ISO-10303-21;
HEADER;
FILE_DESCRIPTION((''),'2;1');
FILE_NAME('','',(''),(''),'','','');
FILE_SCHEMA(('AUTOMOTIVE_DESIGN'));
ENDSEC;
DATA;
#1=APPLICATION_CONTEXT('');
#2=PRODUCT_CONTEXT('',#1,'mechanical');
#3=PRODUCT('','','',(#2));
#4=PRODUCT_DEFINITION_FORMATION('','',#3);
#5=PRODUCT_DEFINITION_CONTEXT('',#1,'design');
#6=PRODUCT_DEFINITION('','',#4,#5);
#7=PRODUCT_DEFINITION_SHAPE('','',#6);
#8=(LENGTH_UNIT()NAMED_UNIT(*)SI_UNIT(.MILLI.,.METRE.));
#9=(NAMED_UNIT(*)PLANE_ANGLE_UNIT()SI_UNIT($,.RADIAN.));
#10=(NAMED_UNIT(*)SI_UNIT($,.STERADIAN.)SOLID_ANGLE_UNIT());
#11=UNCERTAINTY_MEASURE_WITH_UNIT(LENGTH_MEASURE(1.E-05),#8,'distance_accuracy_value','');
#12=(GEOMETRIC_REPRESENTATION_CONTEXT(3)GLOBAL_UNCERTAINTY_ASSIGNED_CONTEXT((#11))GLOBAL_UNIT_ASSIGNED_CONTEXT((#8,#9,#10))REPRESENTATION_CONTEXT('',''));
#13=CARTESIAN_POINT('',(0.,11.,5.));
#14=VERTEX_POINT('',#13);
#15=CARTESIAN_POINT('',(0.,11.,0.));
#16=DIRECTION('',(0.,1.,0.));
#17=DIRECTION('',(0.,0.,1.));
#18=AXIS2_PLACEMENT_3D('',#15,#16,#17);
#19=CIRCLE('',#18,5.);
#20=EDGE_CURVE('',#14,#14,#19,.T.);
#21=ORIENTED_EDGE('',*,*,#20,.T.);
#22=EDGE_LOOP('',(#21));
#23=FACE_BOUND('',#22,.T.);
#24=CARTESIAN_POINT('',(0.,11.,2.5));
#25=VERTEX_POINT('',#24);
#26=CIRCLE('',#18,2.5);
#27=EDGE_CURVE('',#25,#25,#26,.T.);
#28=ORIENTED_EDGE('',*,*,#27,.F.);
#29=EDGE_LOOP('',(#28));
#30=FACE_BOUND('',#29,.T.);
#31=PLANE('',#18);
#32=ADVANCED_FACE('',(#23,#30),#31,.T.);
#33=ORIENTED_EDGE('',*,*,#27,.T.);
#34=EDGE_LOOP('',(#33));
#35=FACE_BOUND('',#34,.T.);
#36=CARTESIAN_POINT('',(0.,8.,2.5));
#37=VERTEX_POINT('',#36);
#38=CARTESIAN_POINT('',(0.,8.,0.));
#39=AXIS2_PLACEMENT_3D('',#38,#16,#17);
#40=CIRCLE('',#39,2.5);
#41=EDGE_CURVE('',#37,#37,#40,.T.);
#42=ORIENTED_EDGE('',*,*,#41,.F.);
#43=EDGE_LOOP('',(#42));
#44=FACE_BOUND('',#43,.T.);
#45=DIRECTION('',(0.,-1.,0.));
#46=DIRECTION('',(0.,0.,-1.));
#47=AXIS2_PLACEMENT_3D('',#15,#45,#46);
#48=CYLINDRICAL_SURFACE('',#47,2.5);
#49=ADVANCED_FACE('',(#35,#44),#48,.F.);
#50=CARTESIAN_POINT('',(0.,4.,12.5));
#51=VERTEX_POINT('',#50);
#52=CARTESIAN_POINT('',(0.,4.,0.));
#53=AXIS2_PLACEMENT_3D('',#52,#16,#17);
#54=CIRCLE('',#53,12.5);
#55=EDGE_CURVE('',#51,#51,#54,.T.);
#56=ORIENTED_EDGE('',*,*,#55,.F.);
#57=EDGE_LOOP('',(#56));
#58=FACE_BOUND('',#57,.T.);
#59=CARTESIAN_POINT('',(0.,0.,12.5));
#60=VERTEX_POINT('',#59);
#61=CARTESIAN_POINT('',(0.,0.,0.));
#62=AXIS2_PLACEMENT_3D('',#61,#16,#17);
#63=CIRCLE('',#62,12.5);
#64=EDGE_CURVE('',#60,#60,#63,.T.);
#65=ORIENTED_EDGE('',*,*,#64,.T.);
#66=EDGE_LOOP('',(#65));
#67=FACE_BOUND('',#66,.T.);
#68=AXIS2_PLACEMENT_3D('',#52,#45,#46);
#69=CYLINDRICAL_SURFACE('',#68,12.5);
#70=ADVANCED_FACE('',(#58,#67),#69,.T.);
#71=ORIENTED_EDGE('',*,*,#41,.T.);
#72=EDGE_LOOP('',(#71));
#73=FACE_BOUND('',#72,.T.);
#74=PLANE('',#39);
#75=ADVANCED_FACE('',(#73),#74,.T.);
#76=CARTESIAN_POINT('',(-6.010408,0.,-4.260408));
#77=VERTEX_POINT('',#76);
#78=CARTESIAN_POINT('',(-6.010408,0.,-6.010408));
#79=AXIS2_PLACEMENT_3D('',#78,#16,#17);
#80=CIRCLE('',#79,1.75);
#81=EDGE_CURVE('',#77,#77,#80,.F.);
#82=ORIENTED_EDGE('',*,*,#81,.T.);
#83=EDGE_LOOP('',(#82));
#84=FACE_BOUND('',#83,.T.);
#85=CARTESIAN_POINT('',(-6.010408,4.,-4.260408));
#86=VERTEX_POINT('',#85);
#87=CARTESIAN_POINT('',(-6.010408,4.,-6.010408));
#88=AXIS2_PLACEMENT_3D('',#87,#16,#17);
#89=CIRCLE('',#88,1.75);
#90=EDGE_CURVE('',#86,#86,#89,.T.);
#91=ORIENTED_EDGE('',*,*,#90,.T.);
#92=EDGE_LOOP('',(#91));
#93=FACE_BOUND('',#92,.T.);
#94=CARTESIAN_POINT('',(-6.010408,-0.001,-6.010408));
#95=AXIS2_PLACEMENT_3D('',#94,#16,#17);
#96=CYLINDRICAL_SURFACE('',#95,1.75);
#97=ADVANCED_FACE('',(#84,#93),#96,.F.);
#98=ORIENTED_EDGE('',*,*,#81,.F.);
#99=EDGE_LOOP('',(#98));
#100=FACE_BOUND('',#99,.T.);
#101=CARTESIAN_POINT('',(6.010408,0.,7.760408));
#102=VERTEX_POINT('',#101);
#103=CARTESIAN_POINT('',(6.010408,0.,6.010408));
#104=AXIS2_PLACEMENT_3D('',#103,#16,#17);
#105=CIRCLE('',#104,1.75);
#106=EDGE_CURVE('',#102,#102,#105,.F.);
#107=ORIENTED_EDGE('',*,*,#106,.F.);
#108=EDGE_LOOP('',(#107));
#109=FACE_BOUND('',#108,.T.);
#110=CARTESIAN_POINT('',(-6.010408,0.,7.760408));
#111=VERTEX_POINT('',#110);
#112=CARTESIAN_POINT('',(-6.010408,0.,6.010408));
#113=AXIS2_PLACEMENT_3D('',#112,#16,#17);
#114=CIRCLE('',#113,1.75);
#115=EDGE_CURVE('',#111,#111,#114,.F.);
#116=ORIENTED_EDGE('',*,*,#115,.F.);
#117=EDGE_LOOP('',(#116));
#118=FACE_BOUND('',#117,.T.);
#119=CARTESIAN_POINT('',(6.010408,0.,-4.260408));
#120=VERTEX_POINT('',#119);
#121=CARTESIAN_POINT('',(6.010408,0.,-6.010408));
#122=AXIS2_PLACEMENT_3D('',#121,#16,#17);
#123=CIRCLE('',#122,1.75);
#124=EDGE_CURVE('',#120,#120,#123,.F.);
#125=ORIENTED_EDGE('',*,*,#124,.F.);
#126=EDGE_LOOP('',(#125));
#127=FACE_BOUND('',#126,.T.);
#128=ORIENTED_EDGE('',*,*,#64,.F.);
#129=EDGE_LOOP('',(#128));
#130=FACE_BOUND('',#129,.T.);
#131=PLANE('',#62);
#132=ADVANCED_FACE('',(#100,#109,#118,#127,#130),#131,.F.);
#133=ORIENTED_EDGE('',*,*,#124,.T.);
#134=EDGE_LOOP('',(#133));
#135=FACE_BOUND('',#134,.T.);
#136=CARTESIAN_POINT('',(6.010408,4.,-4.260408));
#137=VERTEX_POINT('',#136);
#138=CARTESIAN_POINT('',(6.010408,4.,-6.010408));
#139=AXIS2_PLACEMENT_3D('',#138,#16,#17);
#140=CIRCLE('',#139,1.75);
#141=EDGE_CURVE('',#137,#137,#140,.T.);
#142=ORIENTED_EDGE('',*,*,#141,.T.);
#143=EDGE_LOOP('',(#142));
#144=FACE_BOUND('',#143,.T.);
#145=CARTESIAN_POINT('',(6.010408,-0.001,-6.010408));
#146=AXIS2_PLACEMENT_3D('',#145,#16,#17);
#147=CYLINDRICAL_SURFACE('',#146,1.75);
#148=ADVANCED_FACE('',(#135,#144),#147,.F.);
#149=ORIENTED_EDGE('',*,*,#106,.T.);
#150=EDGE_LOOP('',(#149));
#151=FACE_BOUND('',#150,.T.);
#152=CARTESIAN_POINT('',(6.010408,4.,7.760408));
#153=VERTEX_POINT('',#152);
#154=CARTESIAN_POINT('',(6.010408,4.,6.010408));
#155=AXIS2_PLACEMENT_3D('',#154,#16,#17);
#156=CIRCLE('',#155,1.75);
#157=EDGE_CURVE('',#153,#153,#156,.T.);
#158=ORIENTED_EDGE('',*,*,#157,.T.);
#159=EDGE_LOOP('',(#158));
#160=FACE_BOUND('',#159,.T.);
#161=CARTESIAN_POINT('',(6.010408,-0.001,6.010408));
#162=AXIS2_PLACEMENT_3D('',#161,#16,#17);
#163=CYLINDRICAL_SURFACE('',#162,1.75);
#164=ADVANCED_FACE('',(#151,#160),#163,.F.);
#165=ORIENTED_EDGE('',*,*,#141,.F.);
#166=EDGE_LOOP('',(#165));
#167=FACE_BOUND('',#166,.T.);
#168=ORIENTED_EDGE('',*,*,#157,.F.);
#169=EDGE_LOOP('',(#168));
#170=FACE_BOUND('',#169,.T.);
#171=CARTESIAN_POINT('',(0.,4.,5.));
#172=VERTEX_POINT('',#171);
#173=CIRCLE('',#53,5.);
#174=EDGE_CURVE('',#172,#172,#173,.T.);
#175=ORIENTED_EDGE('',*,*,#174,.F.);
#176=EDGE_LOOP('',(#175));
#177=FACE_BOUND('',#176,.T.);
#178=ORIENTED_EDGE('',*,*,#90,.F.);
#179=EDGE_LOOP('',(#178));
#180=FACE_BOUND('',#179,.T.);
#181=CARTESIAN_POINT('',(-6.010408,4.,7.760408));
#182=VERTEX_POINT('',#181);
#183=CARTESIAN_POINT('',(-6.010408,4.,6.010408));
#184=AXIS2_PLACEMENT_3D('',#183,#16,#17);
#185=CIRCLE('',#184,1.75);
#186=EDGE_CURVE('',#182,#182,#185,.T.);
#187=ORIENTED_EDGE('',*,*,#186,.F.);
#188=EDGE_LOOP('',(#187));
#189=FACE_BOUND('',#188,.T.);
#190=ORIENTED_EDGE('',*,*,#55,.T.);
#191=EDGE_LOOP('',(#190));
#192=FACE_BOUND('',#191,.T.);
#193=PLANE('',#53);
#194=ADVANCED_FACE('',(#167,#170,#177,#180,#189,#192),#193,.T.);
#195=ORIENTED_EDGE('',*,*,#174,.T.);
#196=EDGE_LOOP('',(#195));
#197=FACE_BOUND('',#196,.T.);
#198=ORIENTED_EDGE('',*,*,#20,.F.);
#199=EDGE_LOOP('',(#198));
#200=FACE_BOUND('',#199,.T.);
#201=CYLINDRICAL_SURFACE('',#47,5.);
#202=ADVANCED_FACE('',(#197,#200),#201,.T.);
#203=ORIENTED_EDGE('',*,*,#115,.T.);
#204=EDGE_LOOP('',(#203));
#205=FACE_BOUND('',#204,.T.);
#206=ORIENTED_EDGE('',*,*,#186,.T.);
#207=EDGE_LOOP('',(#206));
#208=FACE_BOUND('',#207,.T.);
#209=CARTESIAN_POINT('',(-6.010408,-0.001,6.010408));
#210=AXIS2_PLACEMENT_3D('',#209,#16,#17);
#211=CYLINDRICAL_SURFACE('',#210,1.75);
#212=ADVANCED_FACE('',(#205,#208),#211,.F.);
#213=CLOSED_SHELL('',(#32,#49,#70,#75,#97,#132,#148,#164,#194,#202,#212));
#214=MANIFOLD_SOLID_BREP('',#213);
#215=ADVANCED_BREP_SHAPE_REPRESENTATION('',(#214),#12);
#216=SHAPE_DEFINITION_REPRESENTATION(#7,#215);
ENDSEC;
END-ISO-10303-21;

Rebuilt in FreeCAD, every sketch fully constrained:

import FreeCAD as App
import Part
import Sketcher
from FreeCAD import Vector

doc = App.newDocument("Part")
body = doc.addObject("PartDesign::Body", "Body")

# Sketch on XZ plane
sketch1 = body.newObject("Sketcher::SketchObject", "Sketch")
sketch1.AttachmentSupport = (doc.getObject("XZ_Plane"), [""])
sketch1.MapMode = "FlatFace"
sketch1.addGeometry(Part.Circle(Vector(0, 0, 0), Vector(0, 0, 1), 12), False)
sketch1.addConstraint(Sketcher.Constraint("Coincident", 0, 3, -1, 1))
sketch1.addConstraint(Sketcher.Constraint("Diameter", 0, 25.0))
pad1 = body.newObject("PartDesign::Pad", "Pad")
pad1.Profile = sketch1
pad1.Length = 4
pad1.Reversed = True

# Sketch on XZ plane
sketch2 = body.newObject("Sketcher::SketchObject", "Sketch001")
sketch2.AttachmentSupport = (doc.getObject("XZ_Plane"), [""])
sketch2.MapMode = "FlatFace"
sketch2.AttachmentOffset = App.Placement(Vector(0, 0, -4), App.Rotation())
sketch2.addGeometry(Part.Circle(Vector(0, 0, 0), Vector(0, 0, 1), 5), False)
sketch2.addGeometry(Part.Circle(Vector(0, 0, 0), Vector(0, 0, 1), 2.5), False)
sketch2.addConstraint(Sketcher.Constraint("Coincident", 0, 3, -1, 1))
sketch2.addConstraint(Sketcher.Constraint("Coincident", 1, 3, -1, 1))
sketch2.addConstraint(Sketcher.Constraint("Diameter", 0, 10.0))
sketch2.addConstraint(Sketcher.Constraint("Diameter", 1, 5.0))
pad2 = body.newObject("PartDesign::Pad", "Pad001")
pad2.Profile = sketch2
pad2.Length = 7
pad2.Reversed = True

# Sketch on XZ plane
sketch3 = body.newObject("Sketcher::SketchObject", "Sketch002")
sketch3.AttachmentSupport = (doc.getObject("XZ_Plane"), [""])
sketch3.MapMode = "FlatFace"
sketch3.AttachmentOffset = App.Placement(Vector(0, 0, -4), App.Rotation())
sketch3.addGeometry(Part.Circle(Vector(-6, -6, 0), Vector(0, 0, 1), 1.8), False)
sketch3.addConstraint(Sketcher.Constraint("Diameter", 0, 3.5))
sketch3.addConstraint(Sketcher.Constraint("DistanceX", 0, 3, -1, 1, 6.010408))
sketch3.addConstraint(Sketcher.Constraint("DistanceY", 0, 3, -1, 1, 6.010408))
pocket1 = body.newObject("PartDesign::Pocket", "Pocket")
pocket1.Profile = sketch3
pocket1.Type = "UpToFirst"
pocket1.Reversed = True

# Sketch on XZ plane
sketch4 = body.newObject("Sketcher::SketchObject", "Sketch003")
sketch4.AttachmentSupport = (doc.getObject("XZ_Plane"), [""])
sketch4.MapMode = "FlatFace"
sketch4.AttachmentOffset = App.Placement(Vector(0, 0, -4), App.Rotation())
sketch4.addGeometry(Part.Circle(Vector(6, -6, 0), Vector(0, 0, 1), 1.8), False)
sketch4.addConstraint(Sketcher.Constraint("Diameter", 0, 3.5))
sketch4.addConstraint(Sketcher.Constraint("DistanceX", -1, 1, 0, 3, 6.010408))
sketch4.addConstraint(Sketcher.Constraint("DistanceY", 0, 3, -1, 1, 6.010408))
pocket2 = body.newObject("PartDesign::Pocket", "Pocket001")
pocket2.Profile = sketch4
pocket2.Type = "UpToFirst"
pocket2.Reversed = True

# Sketch on XZ plane
sketch5 = body.newObject("Sketcher::SketchObject", "Sketch004")
sketch5.AttachmentSupport = (doc.getObject("XZ_Plane"), [""])
sketch5.MapMode = "FlatFace"
sketch5.AttachmentOffset = App.Placement(Vector(0, 0, -4), App.Rotation())
sketch5.addGeometry(Part.Circle(Vector(6, 6, 0), Vector(0, 0, 1), 1.8), False)
sketch5.addConstraint(Sketcher.Constraint("Diameter", 0, 3.5))
sketch5.addConstraint(Sketcher.Constraint("DistanceX", -1, 1, 0, 3, 6.010408))
sketch5.addConstraint(Sketcher.Constraint("DistanceY", -1, 1, 0, 3, 6.010408))
pocket3 = body.newObject("PartDesign::Pocket", "Pocket002")
pocket3.Profile = sketch5
pocket3.Type = "UpToFirst"
pocket3.Reversed = True

# Sketch on XZ plane
sketch6 = body.newObject("Sketcher::SketchObject", "Sketch005")
sketch6.AttachmentSupport = (doc.getObject("XZ_Plane"), [""])
sketch6.MapMode = "FlatFace"
sketch6.AttachmentOffset = App.Placement(Vector(0, 0, -4), App.Rotation())
sketch6.addGeometry(Part.Circle(Vector(-6, 6, 0), Vector(0, 0, 1), 1.8), False)
sketch6.addConstraint(Sketcher.Constraint("Diameter", 0, 3.5))
sketch6.addConstraint(Sketcher.Constraint("DistanceX", 0, 3, -1, 1, 6.010408))
sketch6.addConstraint(Sketcher.Constraint("DistanceY", -1, 1, 0, 3, 6.010408))
pocket4 = body.newObject("PartDesign::Pocket", "Pocket003")
pocket4.Profile = sketch6
pocket4.Type = "UpToFirst"
pocket4.Reversed = True

# Sketch on XZ plane
sketch7 = body.newObject("Sketcher::SketchObject", "Sketch006")
sketch7.AttachmentSupport = (doc.getObject("XZ_Plane"), [""])
sketch7.MapMode = "FlatFace"
sketch7.AttachmentOffset = App.Placement(Vector(0, 0, -4), App.Rotation())
sketch7.addGeometry(Part.Circle(Vector(0, 0, 0), Vector(0, 0, 1), 2.5), False)
sketch7.addConstraint(Sketcher.Constraint("Coincident", 0, 3, -1, 1))
sketch7.addConstraint(Sketcher.Constraint("Diameter", 0, 5.0))
pad3 = body.newObject("PartDesign::Pad", "Pad002")
pad3.Profile = sketch7
pad3.Length = 4
pad3.Reversed = True

doc.recompute()
